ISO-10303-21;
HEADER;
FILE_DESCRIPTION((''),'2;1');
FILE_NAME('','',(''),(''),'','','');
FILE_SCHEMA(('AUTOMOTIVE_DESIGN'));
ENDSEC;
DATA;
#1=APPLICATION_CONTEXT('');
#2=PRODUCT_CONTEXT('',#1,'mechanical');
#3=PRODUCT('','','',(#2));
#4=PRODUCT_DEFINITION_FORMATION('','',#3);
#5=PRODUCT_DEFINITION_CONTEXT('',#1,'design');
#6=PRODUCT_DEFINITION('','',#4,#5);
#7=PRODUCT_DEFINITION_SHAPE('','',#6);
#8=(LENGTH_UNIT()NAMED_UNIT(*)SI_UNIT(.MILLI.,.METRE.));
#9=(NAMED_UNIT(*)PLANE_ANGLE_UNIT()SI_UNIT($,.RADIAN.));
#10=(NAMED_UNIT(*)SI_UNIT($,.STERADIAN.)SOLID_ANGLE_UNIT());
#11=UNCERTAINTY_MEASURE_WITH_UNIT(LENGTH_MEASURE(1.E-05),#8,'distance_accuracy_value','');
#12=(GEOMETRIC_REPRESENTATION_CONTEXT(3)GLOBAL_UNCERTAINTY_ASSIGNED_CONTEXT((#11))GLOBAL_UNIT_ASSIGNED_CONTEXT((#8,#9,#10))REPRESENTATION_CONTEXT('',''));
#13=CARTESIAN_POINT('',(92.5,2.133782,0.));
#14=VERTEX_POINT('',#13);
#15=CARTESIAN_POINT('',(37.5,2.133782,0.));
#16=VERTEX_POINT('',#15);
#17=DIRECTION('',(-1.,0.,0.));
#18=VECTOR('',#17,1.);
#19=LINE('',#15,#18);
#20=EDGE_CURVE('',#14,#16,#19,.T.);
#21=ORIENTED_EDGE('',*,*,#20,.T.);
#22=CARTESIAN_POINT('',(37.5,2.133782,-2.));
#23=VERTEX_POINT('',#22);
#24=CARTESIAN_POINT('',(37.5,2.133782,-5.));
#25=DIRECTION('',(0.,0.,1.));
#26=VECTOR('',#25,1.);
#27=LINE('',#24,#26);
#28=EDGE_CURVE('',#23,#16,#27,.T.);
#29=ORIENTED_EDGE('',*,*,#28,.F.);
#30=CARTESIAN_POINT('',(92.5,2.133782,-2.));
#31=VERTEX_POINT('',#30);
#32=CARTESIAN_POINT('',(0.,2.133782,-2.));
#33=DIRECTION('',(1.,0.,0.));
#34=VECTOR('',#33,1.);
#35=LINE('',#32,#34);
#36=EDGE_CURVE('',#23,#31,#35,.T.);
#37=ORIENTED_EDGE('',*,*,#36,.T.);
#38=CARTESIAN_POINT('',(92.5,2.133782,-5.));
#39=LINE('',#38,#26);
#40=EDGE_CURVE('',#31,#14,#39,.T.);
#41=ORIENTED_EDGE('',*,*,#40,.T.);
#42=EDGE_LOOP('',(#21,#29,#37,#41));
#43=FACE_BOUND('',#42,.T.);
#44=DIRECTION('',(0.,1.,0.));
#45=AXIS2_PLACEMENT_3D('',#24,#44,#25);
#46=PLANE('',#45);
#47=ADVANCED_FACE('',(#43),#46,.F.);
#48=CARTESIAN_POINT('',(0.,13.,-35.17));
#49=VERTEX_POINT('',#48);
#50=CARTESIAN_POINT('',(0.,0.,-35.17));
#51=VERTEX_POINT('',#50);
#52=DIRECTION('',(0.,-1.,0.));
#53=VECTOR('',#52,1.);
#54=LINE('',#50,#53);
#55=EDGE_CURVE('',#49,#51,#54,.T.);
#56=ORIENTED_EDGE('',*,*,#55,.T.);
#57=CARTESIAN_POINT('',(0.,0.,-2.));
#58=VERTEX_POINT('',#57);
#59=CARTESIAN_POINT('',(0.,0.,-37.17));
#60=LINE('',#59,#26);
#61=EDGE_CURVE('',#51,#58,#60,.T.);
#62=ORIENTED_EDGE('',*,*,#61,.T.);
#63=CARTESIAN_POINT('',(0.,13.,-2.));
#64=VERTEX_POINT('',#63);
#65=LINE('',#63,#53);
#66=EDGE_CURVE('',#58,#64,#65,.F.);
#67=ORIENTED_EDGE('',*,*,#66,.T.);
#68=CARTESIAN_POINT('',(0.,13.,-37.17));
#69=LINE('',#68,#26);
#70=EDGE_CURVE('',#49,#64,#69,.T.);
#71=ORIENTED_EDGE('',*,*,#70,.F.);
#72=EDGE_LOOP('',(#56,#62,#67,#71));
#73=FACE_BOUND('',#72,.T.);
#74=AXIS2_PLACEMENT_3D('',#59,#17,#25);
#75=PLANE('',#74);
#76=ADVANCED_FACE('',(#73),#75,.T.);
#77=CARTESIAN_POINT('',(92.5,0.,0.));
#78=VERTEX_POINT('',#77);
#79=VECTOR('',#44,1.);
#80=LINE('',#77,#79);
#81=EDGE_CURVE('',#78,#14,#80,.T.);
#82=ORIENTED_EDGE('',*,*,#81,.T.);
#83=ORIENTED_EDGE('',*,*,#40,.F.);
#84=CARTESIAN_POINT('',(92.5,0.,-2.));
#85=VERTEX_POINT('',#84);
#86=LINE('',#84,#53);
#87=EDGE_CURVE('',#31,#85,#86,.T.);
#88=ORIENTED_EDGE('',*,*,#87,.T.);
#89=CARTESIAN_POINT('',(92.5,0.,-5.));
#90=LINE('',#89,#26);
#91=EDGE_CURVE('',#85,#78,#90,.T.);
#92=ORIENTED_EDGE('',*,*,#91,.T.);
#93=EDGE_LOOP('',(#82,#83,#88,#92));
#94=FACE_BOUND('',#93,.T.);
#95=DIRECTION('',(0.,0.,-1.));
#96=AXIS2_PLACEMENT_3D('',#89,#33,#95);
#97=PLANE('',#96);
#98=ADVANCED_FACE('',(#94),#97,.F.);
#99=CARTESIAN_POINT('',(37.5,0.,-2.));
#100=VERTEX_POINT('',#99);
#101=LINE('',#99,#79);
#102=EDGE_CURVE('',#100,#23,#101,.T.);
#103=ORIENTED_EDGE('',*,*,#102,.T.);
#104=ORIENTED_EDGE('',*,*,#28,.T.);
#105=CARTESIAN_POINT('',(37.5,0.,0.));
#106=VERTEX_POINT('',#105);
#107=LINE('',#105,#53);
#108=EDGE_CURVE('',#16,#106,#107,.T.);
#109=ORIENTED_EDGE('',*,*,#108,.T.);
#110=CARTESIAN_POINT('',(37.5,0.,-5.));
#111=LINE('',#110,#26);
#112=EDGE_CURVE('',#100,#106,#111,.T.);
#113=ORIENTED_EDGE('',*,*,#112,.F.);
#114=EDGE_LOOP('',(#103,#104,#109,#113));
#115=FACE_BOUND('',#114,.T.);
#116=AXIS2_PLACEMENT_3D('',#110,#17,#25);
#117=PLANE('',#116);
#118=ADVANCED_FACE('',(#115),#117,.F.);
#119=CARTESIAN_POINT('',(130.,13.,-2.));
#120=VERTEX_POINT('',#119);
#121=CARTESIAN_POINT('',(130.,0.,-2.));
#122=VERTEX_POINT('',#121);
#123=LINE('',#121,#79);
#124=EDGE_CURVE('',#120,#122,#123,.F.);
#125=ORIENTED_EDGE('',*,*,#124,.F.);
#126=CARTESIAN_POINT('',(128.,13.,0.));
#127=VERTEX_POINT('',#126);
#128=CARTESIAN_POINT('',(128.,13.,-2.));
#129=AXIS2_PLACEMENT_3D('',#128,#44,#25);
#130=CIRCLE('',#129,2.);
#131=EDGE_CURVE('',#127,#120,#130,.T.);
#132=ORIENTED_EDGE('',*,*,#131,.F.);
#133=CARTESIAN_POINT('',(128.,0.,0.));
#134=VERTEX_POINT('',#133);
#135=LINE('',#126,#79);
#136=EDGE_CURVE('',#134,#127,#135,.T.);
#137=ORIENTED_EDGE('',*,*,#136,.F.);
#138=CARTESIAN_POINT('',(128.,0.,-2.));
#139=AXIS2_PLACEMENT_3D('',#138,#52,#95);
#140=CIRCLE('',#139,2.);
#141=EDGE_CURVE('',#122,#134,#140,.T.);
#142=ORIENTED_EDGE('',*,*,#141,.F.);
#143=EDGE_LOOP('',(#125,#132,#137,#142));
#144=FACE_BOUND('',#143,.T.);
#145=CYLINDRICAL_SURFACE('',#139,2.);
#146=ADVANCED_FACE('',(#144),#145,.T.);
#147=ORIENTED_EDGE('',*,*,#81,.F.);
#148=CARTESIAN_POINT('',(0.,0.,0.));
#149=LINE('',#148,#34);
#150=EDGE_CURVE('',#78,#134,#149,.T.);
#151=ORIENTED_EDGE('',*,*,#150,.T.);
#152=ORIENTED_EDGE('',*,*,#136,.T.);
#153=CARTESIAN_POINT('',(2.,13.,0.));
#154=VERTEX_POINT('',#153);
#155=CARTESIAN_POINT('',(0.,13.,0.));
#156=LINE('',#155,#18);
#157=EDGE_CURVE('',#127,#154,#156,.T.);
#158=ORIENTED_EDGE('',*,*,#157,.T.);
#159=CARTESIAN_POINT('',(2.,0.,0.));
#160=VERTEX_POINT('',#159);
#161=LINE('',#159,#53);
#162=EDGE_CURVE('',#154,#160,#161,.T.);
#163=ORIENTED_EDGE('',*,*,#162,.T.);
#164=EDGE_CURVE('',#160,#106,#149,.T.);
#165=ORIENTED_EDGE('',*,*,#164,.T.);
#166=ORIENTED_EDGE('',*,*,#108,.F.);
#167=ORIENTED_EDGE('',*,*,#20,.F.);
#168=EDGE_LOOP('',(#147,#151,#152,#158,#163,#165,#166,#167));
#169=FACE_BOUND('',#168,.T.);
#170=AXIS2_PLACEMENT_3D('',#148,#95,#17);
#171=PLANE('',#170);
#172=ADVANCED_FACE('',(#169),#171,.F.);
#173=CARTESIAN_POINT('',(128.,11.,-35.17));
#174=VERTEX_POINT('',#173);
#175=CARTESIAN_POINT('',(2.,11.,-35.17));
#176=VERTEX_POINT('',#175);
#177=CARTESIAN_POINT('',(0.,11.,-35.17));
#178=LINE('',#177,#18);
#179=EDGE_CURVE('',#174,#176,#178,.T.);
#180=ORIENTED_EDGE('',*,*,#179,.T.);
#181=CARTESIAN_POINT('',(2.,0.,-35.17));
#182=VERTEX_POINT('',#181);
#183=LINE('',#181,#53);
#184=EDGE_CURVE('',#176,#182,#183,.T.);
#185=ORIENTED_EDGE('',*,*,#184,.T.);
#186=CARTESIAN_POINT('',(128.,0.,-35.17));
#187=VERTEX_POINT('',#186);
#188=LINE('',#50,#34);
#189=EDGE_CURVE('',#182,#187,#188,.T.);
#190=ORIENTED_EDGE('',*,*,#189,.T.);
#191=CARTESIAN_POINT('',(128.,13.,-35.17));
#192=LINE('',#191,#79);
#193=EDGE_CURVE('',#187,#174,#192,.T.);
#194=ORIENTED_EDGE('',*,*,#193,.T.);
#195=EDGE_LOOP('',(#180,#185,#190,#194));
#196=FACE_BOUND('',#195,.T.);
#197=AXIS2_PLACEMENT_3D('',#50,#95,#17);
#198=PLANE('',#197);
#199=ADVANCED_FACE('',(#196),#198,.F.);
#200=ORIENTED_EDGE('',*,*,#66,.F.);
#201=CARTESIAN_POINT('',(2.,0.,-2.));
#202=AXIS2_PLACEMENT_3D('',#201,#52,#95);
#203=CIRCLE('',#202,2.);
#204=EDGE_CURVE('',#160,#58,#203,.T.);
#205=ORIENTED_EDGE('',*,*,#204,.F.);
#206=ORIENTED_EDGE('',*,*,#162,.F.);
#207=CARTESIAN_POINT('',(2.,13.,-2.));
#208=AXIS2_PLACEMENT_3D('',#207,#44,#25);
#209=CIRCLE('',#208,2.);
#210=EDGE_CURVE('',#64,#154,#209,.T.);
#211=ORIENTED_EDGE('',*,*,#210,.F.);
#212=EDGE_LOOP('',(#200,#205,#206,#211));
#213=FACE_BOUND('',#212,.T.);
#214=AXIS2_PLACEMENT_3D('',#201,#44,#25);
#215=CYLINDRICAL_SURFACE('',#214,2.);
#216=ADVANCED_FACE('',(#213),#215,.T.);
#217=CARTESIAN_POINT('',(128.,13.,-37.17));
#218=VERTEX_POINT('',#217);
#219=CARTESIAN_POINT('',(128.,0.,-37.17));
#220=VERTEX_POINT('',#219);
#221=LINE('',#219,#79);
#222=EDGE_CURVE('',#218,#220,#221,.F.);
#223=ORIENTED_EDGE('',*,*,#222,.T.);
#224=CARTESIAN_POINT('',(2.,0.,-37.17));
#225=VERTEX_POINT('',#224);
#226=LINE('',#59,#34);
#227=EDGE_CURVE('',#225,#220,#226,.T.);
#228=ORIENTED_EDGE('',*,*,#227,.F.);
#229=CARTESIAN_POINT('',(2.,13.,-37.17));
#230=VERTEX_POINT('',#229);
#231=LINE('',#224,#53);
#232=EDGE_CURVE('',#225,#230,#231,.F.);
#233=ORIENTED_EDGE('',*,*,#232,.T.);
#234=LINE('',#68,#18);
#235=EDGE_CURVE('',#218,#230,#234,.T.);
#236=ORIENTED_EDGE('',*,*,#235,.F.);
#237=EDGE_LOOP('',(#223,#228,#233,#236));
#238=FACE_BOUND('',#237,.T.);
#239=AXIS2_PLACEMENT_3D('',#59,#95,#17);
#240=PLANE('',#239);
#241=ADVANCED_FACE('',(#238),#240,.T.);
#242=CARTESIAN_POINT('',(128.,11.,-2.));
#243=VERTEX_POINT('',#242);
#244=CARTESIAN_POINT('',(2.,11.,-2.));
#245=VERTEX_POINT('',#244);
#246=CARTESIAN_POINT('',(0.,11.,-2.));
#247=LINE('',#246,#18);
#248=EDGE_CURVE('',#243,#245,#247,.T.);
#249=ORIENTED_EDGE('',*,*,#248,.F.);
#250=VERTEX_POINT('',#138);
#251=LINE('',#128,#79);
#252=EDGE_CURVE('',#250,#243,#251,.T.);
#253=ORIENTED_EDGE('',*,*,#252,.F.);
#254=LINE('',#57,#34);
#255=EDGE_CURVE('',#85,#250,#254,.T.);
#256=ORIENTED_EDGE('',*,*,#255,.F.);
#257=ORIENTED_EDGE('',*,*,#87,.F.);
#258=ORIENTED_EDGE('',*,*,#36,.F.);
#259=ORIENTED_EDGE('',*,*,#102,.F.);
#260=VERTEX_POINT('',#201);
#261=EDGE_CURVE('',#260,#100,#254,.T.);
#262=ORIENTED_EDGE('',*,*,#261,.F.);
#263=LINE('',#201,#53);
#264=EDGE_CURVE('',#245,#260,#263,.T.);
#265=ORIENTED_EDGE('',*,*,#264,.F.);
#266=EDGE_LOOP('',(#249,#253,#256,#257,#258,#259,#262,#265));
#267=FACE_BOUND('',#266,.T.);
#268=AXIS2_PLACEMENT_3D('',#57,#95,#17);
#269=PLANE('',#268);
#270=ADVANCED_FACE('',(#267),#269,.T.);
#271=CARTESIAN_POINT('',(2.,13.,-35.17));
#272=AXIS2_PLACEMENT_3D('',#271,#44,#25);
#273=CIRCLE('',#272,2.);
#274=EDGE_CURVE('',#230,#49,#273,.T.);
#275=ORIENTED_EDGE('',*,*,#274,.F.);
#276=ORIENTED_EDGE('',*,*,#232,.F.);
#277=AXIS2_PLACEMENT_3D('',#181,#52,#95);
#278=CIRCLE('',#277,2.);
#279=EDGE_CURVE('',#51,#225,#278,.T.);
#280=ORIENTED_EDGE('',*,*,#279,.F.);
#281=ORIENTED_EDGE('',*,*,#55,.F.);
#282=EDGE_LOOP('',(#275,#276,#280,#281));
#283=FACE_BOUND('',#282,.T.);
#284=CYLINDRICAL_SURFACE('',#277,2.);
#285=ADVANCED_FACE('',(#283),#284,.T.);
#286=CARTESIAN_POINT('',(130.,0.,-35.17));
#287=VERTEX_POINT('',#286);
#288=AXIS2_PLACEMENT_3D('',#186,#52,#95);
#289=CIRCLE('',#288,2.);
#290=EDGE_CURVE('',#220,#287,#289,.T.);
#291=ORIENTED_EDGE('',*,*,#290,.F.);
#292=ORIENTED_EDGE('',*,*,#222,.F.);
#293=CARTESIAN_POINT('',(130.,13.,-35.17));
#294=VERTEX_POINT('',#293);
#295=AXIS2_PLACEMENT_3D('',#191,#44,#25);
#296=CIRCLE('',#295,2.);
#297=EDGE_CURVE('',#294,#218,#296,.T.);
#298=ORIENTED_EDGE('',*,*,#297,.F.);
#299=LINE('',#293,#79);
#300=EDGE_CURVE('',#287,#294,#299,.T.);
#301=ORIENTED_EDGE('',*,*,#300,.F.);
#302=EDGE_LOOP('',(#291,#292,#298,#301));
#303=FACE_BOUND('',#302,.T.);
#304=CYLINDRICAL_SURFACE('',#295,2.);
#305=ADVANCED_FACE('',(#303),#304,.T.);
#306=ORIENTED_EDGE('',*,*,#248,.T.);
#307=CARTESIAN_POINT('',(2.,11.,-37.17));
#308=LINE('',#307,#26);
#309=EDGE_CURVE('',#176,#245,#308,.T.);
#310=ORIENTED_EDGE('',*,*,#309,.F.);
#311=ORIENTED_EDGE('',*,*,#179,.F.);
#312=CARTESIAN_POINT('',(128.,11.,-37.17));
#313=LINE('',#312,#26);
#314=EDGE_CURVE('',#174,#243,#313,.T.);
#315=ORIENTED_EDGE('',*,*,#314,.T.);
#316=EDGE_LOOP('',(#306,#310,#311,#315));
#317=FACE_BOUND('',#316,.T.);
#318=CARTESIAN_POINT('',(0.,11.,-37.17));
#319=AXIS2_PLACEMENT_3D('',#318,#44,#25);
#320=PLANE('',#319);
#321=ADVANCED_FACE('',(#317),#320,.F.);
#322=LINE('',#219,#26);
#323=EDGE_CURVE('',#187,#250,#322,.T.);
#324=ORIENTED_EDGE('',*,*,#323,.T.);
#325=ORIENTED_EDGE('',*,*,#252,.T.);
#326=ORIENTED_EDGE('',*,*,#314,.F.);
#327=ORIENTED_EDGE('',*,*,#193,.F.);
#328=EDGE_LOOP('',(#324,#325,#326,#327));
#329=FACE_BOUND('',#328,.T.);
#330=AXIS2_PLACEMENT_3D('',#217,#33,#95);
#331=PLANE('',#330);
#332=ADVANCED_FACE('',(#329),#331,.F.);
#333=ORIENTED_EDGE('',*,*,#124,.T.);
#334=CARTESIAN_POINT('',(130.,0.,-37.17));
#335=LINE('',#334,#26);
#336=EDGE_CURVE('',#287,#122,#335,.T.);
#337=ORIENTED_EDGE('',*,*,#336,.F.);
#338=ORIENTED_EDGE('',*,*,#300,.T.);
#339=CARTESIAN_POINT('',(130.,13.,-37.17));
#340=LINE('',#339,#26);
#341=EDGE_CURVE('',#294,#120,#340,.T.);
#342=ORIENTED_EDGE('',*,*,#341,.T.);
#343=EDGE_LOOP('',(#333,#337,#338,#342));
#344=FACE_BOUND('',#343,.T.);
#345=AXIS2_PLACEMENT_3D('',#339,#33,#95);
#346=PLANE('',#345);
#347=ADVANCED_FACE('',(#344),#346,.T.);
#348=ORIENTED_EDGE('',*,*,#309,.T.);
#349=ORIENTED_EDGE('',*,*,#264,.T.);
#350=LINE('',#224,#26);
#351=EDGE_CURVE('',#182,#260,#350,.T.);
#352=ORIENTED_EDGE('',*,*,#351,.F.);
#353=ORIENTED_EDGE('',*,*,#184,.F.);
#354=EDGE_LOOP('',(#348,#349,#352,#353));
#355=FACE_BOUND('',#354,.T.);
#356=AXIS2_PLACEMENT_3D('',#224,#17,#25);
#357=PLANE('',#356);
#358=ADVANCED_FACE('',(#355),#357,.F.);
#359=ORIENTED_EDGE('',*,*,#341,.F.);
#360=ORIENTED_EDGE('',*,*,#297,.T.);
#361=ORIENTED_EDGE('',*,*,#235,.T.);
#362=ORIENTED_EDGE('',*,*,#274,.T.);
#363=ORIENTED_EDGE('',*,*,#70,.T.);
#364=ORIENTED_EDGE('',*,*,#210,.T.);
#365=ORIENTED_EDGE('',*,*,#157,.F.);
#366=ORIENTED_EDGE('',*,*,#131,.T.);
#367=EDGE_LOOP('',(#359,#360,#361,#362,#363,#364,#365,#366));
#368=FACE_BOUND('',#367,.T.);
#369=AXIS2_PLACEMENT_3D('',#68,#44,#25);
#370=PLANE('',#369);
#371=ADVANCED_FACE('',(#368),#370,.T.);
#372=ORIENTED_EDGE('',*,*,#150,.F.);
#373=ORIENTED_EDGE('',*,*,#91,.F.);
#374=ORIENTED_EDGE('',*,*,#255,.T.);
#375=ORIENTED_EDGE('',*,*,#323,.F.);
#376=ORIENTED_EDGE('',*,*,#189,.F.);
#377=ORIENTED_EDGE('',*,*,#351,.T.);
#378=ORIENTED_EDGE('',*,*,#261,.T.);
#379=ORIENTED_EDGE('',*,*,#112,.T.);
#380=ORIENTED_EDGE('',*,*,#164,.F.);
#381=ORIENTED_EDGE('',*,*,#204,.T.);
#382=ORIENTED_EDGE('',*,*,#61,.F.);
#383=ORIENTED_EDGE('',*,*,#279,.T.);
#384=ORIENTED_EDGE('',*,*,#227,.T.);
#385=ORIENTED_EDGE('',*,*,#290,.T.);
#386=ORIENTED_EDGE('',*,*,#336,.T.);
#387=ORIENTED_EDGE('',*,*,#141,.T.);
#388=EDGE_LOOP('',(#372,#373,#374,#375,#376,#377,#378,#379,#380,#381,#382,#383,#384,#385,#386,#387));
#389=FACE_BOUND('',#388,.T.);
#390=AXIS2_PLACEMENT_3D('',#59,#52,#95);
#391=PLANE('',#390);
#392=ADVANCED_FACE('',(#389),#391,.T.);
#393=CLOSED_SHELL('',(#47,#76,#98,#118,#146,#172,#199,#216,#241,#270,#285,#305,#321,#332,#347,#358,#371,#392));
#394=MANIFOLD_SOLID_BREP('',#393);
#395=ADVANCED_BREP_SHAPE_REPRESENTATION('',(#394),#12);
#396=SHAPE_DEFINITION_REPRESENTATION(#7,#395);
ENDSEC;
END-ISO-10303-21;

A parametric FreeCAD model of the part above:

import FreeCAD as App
import Part
import Sketcher


def edges_at(feature, points):
    """Names of the edges that pass closest to the given points."""
    edges = feature.Shape.Edges
    near = lambda p: min(range(len(edges)), key=lambda i: edges[i].distToShape(Part.Vertex(*p))[0])
    return sorted({f"Edge{near(p) + 1}" for p in points})


def faces_at(feature, points):
    """Names of the faces that lie closest to the given points."""
    faces = feature.Shape.Faces
    near = lambda p: min(range(len(faces)), key=lambda i: faces[i].distToShape(Part.Vertex(*p))[0])
    return sorted({f"Face{near(p) + 1}" for p in points})


def add_polygon(sketch, points):
    """Adds a closed chain of lines whose ends are joined by coincident constraints."""
    first, n = sketch.GeometryCount, len(points)
    for a, b in zip(points, points[1:] + points[:1]):
        sketch.addGeometry(Part.LineSegment(App.Vector(*a, 0), App.Vector(*b, 0)), False)
    for i in range(n):
        sketch.addConstraint(Sketcher.Constraint("Coincident", first + i, 2, first + (i + 1) % n, 1))

doc = App.newDocument("Part")
body = doc.addObject("PartDesign::Body", "Body")

# Sketch on XY plane
sketch1 = body.newObject("Sketcher::SketchObject", "Sketch")
sketch1.AttachmentSupport = (doc.getObject("XY_Plane"), [""])
sketch1.MapMode = "FlatFace"
add_polygon(sketch1, [(0, 13), (0, 0), (130, 0), (130, 13)])  # lines 0-3
sketch1.addConstraint(Sketcher.Constraint("Vertical", 0))
sketch1.addConstraint(Sketcher.Constraint("Horizontal", 1))
sketch1.addConstraint(Sketcher.Constraint("Vertical", 2))
sketch1.addConstraint(Sketcher.Constraint("Horizontal", 3))
sketch1.addConstraint(Sketcher.Constraint("Coincident", 0, 2, -1, 1))
sketch1.addConstraint(Sketcher.Constraint("DistanceX", 1, 1, 1, 2, 130.0))
sketch1.addConstraint(Sketcher.Constraint("DistanceY", 0, 2, 0, 1, 13.0))
pad1 = body.newObject("PartDesign::Pad", "Pad")
pad1.Profile = sketch1
pad1.Length = 37.17
pad1.Reversed = True
doc.recompute()

thickness = body.newObject("PartDesign::Thickness", "Thickness")
thickness.Base = (pad1, faces_at(pad1, [(65, 0, -18.585)]))
thickness.Value = 2
thickness.Reversed = True
thickness.Join = "Intersection"

# Sketch on XY plane
sketch2 = body.newObject("Sketcher::SketchObject", "Sketch001")
sketch2.AttachmentSupport = (doc.getObject("XY_Plane"), [""])
sketch2.MapMode = "FlatFace"
add_polygon(sketch2, [(37.5, 2.1), (37.5, 0), (92.5, 0), (92.5, 2.1)])  # lines 0-3
sketch2.addConstraint(Sketcher.Constraint("Vertical", 0))
sketch2.addConstraint(Sketcher.Constraint("Horizontal", 1))
sketch2.addConstraint(Sketcher.Constraint("Vertical", 2))
sketch2.addConstraint(Sketcher.Constraint("Horizontal", 3))
sketch2.addConstraint(Sketcher.Constraint("PointOnObject", 0, 2, -1))
sketch2.addConstraint(Sketcher.Constraint("DistanceX", 1, 1, 1, 2, 55.0))
sketch2.addConstraint(Sketcher.Constraint("DistanceX", -1, 1, 0, 2, 37.5))
sketch2.addConstraint(Sketcher.Constraint("DistanceY", 0, 2, 0, 1, 2.133782))
pocket1 = body.newObject("PartDesign::Pocket", "Pocket")
pocket1.Profile = sketch2
pocket1.Length = 5
doc.recompute()

fillet = body.newObject("PartDesign::Fillet", "Fillet")
fillet.Base = (pocket1, edges_at(pocket1, [
    (130, 6.5, -37.17),
    (0, 6.5, -37.17),
    (130, 6.5, 0),
    (0, 6.5, 0),
]))
fillet.Radius = 2

doc.recompute()
